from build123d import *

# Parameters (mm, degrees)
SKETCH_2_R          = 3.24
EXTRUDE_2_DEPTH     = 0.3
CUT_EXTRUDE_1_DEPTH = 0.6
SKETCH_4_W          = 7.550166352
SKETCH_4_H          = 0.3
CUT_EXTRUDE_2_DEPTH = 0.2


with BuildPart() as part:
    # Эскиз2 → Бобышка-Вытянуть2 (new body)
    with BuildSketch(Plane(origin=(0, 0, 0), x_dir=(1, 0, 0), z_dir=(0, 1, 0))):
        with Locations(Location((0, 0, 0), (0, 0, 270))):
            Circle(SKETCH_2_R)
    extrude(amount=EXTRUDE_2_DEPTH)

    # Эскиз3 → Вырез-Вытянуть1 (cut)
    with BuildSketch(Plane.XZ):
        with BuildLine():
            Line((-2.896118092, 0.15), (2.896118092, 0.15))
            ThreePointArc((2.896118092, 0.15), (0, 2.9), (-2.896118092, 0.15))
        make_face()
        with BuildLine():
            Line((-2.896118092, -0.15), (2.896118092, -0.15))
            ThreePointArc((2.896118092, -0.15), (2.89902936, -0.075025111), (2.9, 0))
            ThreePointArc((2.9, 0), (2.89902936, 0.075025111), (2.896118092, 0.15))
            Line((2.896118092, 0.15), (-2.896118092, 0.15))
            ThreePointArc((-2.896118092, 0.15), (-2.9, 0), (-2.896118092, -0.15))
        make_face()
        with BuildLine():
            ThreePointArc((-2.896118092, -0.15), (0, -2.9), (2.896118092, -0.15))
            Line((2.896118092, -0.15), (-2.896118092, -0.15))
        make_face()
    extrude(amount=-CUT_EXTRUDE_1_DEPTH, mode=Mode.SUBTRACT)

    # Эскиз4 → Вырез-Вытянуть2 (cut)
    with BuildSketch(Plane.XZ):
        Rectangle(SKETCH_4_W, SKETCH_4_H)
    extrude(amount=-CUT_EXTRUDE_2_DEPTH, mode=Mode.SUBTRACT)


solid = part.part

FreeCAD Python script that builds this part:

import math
import FreeCAD as App
import Part
import Sketcher


def add_polygon(sketch, points):
    """Adds a closed chain of lines whose ends are joined by coincident constraints."""
    first, n = sketch.GeometryCount, len(points)
    for a, b in zip(points, points[1:] + points[:1]):
        sketch.addGeometry(Part.LineSegment(App.Vector(*a, 0), App.Vector(*b, 0)), False)
    for i in range(n):
        sketch.addConstraint(Sketcher.Constraint("Coincident", first + i, 2, first + (i + 1) % n, 1))

doc = App.newDocument("Part")
body = doc.addObject("PartDesign::Body", "Body")

# Sketch on XZ plane
sketch1 = doc.addObject("Sketcher::SketchObject", "Sketch")
body.addObject(sketch1)
sketch1.AttachmentSupport = (doc.XZ_Plane, [""])
sketch1.MapMode = "FlatFace"
sketch1.addGeometry(Part.Circle(App.Vector(0, 0, 0), App.Vector(0, 0, 1), 3.2), False)
sketch1.addConstraint([
    Sketcher.Constraint("Coincident", 0, 3, -1, 1),
    Sketcher.Constraint("Diameter", 0, 6.48),
])
pad1 = doc.addObject("PartDesign::Pad", "Pad")
body.addObject(pad1)
pad1.Profile = sketch1
pad1.Length = 0.3
pad1.Reversed = True

# Sketch on XZ plane
sketch2 = doc.addObject("Sketcher::SketchObject", "Sketch001")
body.addObject(sketch2)
sketch2.AttachmentSupport = (doc.XZ_Plane, [""])
sketch2.MapMode = "FlatFace"
sketch2.addGeometry([
    Part.ArcOfCircle(Part.Circle(App.Vector(0, 0, 0), App.Vector(0, 0, 1), 2.9), math.radians(3), math.radians(177)),  # 0
    Part.ArcOfCircle(Part.Circle(App.Vector(0, 0, 0), App.Vector(0, 0, 1), 2.9), math.radians(177.04), math.radians(182.96)),  # 1
    Part.ArcOfCircle(Part.Circle(App.Vector(0, 0, 0), App.Vector(0, 0, 1), 2.9), math.radians(-177), math.radians(-3)),  # 2
    Part.ArcOfCircle(Part.Circle(App.Vector(0, 0, 0), App.Vector(0, 0, 1), 2.9), math.radians(-2.96), math.radians(0)),  # 3
    Part.ArcOfCircle(Part.Circle(App.Vector(0, 0, 0), App.Vector(0, 0, 1), 2.9), math.radians(0), math.radians(2.96)),  # 4
], False)
sketch2.addConstraint([
    Sketcher.Constraint("Tangent", 0, 2, 1, 1),
    Sketcher.Constraint("Tangent", 1, 2, 2, 1),
    Sketcher.Constraint("Tangent", 2, 2, 3, 1),
    Sketcher.Constraint("Tangent", 3, 2, 4, 1),
    Sketcher.Constraint("Tangent", 4, 2, 0, 1),
    Sketcher.Constraint("Coincident", 0, 3, -1, 1),
    Sketcher.Constraint("Coincident", 3, 3, -1, 1),
    Sketcher.Constraint("PointOnObject", 3, 2, -1),
    Sketcher.Constraint("Horizontal", 1, 2, 2, 2),
    Sketcher.Constraint("Horizontal", 0, 2, 4, 2),
    Sketcher.Constraint("Vertical", 0, 2, 1, 2),
    Sketcher.Constraint("Radius", 0, 2.9),
    Sketcher.Constraint("DistanceY", 1, 2, 0, 2, 0.3),
])
pocket1 = doc.addObject("PartDesign::Pocket", "Pocket")
body.addObject(pocket1)
pocket1.Profile = sketch2
pocket1.Length = 0.6

# Sketch on XZ plane
sketch3 = doc.addObject("Sketcher::SketchObject", "Sketch002")
body.addObject(sketch3)
sketch3.AttachmentSupport = (doc.XZ_Plane, [""])
sketch3.MapMode = "FlatFace"
add_polygon(sketch3, [(-3.78, 0.15), (-3.78, -0.15), (3.78, -0.15), (3.78, 0.15)])  # lines 0-3
sketch3.addConstraint([
    Sketcher.Constraint("Vertical", 0),
    Sketcher.Constraint("Horizontal", 1),
    Sketcher.Constraint("Vertical", 2),
    Sketcher.Constraint("Horizontal", 3),
    Sketcher.Constraint("Symmetric", 0, 2, 2, 2, -1, 1),
    Sketcher.Constraint("DistanceY", 0, 2, 0, 1, 0.3),
    Sketcher.Constraint("DistanceX", 1, 1, 1, 2, 7.550166),
])
pocket2 = doc.addObject("PartDesign::Pocket", "Pocket001")
body.addObject(pocket2)
pocket2.Profile = sketch3
pocket2.Length = 0.2

doc.recompute()
